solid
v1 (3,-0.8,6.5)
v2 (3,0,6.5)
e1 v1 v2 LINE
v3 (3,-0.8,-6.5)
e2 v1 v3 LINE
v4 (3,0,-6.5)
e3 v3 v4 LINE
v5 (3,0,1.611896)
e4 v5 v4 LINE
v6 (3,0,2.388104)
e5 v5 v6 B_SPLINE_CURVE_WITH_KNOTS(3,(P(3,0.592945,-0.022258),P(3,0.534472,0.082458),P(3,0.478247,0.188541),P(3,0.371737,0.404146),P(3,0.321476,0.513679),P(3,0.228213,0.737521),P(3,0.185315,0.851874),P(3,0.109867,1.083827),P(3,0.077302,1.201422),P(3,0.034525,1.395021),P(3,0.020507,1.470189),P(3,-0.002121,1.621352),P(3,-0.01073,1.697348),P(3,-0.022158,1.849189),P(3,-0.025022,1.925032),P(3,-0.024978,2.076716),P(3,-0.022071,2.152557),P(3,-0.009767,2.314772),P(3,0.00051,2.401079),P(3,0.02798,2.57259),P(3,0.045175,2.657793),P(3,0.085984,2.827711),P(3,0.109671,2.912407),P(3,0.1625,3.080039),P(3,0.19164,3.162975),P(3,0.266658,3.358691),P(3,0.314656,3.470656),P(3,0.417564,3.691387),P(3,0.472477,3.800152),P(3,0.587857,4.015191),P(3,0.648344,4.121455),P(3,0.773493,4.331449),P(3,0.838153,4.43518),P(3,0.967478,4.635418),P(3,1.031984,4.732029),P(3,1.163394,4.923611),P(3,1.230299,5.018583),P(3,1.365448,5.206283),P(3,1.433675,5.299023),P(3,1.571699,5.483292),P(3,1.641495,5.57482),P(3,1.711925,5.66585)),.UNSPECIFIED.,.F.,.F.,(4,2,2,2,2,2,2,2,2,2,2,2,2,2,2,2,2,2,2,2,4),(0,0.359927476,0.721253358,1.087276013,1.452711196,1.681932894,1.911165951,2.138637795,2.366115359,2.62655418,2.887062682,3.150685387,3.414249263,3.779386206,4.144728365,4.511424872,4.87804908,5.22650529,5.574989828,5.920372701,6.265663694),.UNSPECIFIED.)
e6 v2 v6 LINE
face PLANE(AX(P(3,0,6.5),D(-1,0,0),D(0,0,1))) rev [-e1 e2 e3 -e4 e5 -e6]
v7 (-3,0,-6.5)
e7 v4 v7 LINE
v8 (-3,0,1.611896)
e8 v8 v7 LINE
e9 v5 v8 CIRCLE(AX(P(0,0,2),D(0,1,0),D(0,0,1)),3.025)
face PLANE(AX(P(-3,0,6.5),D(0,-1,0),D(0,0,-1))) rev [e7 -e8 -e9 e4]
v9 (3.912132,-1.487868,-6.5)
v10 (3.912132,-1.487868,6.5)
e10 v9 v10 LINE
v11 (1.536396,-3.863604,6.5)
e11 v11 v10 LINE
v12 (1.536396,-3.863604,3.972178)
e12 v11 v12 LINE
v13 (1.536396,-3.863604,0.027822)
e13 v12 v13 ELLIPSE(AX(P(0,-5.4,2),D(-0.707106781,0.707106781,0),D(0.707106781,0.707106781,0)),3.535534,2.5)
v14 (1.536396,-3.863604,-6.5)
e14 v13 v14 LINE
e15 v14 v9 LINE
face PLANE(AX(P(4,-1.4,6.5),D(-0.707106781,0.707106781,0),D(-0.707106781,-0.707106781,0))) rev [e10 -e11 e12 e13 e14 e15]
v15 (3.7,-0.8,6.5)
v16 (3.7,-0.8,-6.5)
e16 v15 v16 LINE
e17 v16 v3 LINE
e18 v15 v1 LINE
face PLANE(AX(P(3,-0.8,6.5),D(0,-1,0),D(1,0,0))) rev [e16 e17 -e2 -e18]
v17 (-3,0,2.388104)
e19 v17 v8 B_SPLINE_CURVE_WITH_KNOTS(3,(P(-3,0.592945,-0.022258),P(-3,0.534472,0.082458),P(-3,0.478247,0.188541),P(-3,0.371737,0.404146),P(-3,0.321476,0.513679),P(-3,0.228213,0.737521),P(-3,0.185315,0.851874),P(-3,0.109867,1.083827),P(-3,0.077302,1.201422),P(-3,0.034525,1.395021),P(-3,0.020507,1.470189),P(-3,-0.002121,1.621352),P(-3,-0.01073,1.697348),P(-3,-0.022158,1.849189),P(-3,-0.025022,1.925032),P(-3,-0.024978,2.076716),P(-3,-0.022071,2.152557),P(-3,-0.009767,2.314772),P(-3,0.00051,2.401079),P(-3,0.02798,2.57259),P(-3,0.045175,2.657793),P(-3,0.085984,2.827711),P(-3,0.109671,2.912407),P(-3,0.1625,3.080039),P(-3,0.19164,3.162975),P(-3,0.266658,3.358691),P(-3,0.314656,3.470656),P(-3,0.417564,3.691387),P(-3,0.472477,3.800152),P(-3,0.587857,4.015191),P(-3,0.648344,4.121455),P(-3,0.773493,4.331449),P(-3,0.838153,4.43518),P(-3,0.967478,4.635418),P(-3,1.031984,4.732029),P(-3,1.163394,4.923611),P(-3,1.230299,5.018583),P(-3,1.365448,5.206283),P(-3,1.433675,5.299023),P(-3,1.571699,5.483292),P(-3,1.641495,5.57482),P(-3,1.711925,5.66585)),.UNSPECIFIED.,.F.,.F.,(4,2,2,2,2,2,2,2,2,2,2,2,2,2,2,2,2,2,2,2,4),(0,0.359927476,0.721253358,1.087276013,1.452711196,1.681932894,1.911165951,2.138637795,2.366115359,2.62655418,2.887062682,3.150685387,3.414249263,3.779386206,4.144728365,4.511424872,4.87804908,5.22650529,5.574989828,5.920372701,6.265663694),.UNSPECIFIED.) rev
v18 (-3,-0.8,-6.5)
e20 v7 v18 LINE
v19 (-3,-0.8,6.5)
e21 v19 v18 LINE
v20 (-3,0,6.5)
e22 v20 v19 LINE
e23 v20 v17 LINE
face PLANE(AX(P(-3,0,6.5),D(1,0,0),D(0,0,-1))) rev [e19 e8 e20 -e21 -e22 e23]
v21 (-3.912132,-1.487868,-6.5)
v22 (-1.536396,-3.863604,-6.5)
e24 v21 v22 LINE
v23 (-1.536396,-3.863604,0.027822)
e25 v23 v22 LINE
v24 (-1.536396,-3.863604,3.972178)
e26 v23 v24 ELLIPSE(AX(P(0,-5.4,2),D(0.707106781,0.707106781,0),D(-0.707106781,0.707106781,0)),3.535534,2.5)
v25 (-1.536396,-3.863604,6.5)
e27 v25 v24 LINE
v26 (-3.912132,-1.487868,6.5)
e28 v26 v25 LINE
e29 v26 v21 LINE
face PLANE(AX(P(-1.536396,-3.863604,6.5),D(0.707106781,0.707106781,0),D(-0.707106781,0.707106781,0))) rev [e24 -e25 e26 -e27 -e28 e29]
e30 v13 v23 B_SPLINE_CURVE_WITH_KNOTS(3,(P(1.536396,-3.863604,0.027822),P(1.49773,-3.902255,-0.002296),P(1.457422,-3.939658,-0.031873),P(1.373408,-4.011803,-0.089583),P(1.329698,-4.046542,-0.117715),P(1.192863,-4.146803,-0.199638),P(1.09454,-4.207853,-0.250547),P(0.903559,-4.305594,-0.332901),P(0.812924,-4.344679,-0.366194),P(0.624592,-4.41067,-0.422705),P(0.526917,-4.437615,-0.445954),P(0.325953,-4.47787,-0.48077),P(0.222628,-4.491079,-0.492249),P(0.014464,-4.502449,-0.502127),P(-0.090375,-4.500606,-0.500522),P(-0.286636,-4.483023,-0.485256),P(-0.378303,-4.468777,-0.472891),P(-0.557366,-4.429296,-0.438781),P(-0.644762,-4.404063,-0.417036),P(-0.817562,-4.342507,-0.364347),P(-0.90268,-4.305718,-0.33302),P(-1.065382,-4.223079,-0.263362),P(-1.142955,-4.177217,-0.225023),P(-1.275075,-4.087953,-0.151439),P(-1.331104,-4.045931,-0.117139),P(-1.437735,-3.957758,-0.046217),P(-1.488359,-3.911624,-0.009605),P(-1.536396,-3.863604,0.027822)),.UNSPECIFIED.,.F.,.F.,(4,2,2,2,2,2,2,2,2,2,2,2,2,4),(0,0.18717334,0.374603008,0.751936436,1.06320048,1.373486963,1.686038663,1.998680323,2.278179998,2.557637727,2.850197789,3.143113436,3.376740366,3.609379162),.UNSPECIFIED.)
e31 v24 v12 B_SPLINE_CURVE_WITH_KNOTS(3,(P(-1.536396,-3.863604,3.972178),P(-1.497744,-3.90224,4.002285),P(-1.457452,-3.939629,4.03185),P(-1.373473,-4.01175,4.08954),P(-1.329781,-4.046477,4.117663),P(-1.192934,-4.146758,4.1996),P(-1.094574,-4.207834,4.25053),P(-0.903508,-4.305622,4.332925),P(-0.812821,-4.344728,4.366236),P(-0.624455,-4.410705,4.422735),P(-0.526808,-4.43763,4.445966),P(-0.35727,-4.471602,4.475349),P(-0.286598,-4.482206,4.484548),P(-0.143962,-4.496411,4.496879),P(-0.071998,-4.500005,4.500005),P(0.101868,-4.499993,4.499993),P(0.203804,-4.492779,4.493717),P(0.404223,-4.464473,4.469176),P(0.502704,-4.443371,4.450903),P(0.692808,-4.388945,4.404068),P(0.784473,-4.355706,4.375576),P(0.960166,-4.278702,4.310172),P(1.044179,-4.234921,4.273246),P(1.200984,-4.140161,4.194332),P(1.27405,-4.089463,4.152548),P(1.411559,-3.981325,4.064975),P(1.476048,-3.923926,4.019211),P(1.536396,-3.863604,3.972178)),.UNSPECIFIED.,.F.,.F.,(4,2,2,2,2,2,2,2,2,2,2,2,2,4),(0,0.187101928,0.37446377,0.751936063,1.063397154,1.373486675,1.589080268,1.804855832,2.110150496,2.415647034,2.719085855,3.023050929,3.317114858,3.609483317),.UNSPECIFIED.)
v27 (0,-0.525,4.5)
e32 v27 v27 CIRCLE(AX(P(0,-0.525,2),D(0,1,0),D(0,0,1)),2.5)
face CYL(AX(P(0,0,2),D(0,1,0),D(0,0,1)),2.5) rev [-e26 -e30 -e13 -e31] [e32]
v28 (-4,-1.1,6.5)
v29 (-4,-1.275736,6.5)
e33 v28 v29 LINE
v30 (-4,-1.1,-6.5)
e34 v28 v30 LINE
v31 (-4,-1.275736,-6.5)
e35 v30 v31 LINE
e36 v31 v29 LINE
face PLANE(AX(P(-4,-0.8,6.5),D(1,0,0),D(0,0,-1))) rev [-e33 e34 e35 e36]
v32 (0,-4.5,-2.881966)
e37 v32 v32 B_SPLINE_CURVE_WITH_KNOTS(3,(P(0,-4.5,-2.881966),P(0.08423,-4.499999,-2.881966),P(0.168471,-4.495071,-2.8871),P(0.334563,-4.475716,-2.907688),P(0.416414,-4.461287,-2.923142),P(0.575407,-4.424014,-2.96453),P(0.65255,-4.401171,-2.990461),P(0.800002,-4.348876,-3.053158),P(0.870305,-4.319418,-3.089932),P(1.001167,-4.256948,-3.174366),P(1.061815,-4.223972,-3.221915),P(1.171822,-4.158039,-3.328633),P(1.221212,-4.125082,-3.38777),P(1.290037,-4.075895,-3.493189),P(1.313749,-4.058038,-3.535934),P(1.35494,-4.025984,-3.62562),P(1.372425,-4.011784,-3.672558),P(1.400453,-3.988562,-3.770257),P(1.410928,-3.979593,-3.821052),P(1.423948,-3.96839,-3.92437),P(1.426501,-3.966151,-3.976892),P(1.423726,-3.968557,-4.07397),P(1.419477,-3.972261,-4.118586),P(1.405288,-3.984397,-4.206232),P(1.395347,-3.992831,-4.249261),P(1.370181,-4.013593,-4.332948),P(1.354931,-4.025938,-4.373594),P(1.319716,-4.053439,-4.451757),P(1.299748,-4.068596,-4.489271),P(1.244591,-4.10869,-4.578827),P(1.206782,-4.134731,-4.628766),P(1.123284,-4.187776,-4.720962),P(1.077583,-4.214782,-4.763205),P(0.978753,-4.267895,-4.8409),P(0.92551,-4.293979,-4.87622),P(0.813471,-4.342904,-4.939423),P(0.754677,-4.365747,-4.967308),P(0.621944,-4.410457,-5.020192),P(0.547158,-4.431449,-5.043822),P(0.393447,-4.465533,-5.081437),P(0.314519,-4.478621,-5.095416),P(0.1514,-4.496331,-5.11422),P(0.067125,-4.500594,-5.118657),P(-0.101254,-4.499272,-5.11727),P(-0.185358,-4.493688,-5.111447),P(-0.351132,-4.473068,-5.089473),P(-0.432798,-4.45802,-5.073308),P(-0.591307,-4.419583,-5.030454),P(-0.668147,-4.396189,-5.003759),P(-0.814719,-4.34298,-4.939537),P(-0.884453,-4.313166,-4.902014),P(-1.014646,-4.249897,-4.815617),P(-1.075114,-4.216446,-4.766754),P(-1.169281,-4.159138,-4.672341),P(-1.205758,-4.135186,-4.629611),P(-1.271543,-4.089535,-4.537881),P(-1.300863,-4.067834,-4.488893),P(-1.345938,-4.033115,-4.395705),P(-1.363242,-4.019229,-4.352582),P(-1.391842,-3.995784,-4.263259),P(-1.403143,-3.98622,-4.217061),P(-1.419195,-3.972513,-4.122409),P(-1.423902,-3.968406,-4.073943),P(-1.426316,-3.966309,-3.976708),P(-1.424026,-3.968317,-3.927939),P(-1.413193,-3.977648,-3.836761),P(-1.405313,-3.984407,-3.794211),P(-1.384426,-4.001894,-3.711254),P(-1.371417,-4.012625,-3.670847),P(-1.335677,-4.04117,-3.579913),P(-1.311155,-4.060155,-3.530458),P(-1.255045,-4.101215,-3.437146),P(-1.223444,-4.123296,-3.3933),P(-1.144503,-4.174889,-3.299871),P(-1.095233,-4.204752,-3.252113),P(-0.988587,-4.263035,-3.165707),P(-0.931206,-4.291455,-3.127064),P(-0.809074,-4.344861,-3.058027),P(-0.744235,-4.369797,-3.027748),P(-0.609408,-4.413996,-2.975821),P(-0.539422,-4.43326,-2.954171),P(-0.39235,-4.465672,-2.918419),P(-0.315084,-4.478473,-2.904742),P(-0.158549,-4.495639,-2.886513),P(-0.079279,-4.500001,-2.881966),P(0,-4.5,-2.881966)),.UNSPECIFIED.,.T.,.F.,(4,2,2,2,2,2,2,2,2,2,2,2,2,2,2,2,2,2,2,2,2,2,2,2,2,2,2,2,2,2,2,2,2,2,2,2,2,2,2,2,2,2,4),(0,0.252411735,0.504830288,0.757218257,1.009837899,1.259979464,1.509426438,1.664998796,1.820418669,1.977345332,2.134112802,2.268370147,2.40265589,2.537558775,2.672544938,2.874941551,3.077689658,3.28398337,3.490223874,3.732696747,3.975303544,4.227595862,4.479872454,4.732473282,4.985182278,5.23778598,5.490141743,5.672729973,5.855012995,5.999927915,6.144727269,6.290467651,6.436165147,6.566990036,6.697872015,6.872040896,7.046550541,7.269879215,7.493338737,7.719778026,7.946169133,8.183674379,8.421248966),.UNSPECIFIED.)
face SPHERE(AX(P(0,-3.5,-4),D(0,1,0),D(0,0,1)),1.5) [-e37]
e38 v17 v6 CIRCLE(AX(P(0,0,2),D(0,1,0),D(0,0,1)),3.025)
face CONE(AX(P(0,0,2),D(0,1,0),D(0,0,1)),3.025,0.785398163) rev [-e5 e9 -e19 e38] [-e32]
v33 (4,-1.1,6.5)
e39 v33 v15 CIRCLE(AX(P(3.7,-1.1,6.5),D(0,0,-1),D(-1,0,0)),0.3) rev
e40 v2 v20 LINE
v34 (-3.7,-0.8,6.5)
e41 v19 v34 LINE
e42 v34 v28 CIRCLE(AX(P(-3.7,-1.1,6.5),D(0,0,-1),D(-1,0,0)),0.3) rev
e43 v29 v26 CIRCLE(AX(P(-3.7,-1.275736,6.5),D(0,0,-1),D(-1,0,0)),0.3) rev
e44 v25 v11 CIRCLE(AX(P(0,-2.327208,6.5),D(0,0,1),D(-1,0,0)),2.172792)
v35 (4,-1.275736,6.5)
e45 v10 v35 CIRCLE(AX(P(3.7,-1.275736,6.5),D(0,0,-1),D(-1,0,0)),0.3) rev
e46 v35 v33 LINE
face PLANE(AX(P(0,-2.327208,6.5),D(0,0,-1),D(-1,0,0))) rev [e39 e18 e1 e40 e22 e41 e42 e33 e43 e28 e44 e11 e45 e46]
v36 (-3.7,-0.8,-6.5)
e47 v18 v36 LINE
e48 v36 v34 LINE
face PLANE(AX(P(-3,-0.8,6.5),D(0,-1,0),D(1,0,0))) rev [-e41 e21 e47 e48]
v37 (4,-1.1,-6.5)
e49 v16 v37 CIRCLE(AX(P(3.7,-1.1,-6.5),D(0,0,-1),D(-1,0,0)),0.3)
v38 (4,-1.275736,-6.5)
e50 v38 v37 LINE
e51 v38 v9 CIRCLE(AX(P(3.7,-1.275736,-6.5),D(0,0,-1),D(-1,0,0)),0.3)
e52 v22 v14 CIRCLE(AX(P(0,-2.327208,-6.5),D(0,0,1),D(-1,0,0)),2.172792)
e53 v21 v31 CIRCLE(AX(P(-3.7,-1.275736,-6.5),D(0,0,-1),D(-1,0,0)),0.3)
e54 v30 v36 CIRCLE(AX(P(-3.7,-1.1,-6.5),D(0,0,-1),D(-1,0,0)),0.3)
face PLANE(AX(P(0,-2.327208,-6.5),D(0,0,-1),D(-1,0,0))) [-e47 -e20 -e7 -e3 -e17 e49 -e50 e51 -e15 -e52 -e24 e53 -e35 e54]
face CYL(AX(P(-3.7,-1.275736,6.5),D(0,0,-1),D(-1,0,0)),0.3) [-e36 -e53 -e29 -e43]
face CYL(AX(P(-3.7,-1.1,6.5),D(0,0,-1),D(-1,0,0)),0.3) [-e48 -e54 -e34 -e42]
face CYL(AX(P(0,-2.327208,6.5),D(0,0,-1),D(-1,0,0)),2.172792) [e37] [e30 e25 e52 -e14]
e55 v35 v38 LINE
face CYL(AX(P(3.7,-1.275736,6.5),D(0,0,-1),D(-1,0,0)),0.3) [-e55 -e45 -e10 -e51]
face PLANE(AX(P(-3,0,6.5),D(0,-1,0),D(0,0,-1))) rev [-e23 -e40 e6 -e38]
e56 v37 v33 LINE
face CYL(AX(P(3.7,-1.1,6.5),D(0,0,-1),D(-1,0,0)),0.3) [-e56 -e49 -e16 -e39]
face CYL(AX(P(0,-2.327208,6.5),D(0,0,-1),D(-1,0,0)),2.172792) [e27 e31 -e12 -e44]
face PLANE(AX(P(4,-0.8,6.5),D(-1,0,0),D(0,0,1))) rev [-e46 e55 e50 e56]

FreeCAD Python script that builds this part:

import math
import FreeCAD as App
import Part
import Sketcher
Q = App.Units.Quantity


def edges_at(feature, points):
    """Names of the edges that pass closest to the given points."""
    edges = feature.Shape.Edges
    near = lambda p: min(range(len(edges)), key=lambda i: edges[i].distToShape(Part.Vertex(*p))[0])
    return sorted({f"Edge{near(p) + 1}" for p in points})

doc = App.newDocument("Part")
body = doc.addObject("PartDesign::Body", "Body")

# Sketch on XY plane
sketch1 = doc.addObject("Sketcher::SketchObject", "Sketch")
body.addObject(sketch1)
sketch1.AttachmentSupport = (doc.XY_Plane, [""])
sketch1.MapMode = "FlatFace"
sketch1.addGeometry([
    Part.LineSegment(App.Vector(3, 0, 0), App.Vector(-3, 0, 0)),  # 0
    Part.LineSegment(App.Vector(-3, 0, 0), App.Vector(-3, -0.8, 0)),  # 1
    Part.LineSegment(App.Vector(-3, -0.8, 0), App.Vector(-4, -0.8, 0)),  # 2
    Part.LineSegment(App.Vector(-4, -0.8, 0), App.Vector(-4, -1.4, 0)),  # 3
    Part.LineSegment(App.Vector(-4, -1.4, 0), App.Vector(-1.536396, -3.863604, 0)),  # 4
    Part.ArcOfCircle(Part.Circle(App.Vector(0, -2.327208, 0), App.Vector(0, 0, 1), 2.172792), math.radians(-135), math.radians(-45)),  # 5
    Part.LineSegment(App.Vector(1.536396, -3.863604, 0), App.Vector(4, -1.4, 0)),  # 6
    Part.LineSegment(App.Vector(4, -1.4, 0), App.Vector(4, -0.8, 0)),  # 7
    Part.LineSegment(App.Vector(4, -0.8, 0), App.Vector(3, -0.8, 0)),  # 8
    Part.LineSegment(App.Vector(3, -0.8, 0), App.Vector(3, 0, 0)),  # 9
], False)
sketch1.addConstraint([
    Sketcher.Constraint("Coincident", 0, 2, 1, 1),
    Sketcher.Constraint("Coincident", 1, 2, 2, 1),
    Sketcher.Constraint("Coincident", 2, 2, 3, 1),
    Sketcher.Constraint("Coincident", 3, 2, 4, 1),
    Sketcher.Constraint("Tangent", 4, 2, 5, 1),
    Sketcher.Constraint("Tangent", 5, 2, 6, 1),
    Sketcher.Constraint("Coincident", 6, 2, 7, 1),
    Sketcher.Constraint("Coincident", 7, 2, 8, 1),
    Sketcher.Constraint("Coincident", 8, 2, 9, 1),
    Sketcher.Constraint("Coincident", 9, 2, 0, 1),
    Sketcher.Constraint("Horizontal", 0),
    Sketcher.Constraint("Vertical", 1),
    Sketcher.Constraint("Horizontal", 2),
    Sketcher.Constraint("Vertical", 3),
    Sketcher.Constraint("Vertical", 7),
    Sketcher.Constraint("Horizontal", 8),
    Sketcher.Constraint("Vertical", 9),
    Sketcher.Constraint("Symmetric", 0, 2, 9, 2, -1, 1),
    Sketcher.Constraint("Symmetric", 4, 2, 5, 2, -2),
    Sketcher.Constraint("Symmetric", 2, 2, 7, 2, -2),
    Sketcher.Constraint("Perpendicular", 4, 6),
    Sketcher.Constraint("DistanceX", 0, 2, 0, 1, Q("6 mm")),
    Sketcher.Constraint("DistanceX", 2, 2, 2, 1, Q("1 mm")),
    Sketcher.Constraint("DistanceY", 1, 2, 1, 1, Q("0.8 mm")),
    Sketcher.Constraint("DistanceY", 3, 2, 3, 1, Q("0.6 mm")),
    Sketcher.Constraint("Radius", 5, Q("2.172792 mm")),
])
pad1 = doc.addObject("PartDesign::Pad", "Pad")
body.addObject(pad1)
pad1.Profile = sketch1
pad1.Length = 13
pad1.Midplane = True

# Sketch on XZ plane
sketch2 = doc.addObject("Sketcher::SketchObject", "Sketch001")
body.addObject(sketch2)
sketch2.AttachmentSupport = (doc.XZ_Plane, [""])
sketch2.MapMode = "FlatFace"
sketch2.addGeometry(Part.Circle(App.Vector(0, 2, 0), App.Vector(0, 0, 1), 2.5), False)
sketch2.addConstraint([
    Sketcher.Constraint("PointOnObject", 0, 3, -2),
    Sketcher.Constraint("Diameter", 0, Q("5 mm")),
    Sketcher.Constraint("DistanceY", -1, 1, 0, 3, Q("2 mm")),
])
doc.recompute()
hole = doc.addObject("PartDesign::Hole", "Hole")
body.addObject(hole)
hole.Profile = sketch2
hole.ThreadType = "None"
hole.Diameter = 5
hole.DepthType = "ThroughAll"
hole.HoleCutType = "Countersink"
hole.HoleCutDiameter = 6.05
hole.HoleCutCountersinkAngle = 90
hole.Reversed = True

# Sketch on YZ plane
sketch3 = doc.addObject("Sketcher::SketchObject", "Sketch002")
body.addObject(sketch3)
sketch3.AttachmentSupport = (doc.YZ_Plane, [""])
sketch3.MapMode = "FlatFace"
sketch3.addGeometry([
    Part.LineSegment(App.Vector(-5, -4, 0), App.Vector(-2, -4, 0)),
    Part.ArcOfCircle(Part.Circle(App.Vector(-3.5, -4, 0), App.Vector(0, 0, 1), 1.5), math.radians(0), math.radians(180)),
], False)
sketch3.addGeometry(Part.LineSegment(App.Vector(-2, -4, 0), App.Vector(-5, -4, 0)), True)  # axis
sketch3.addConstraint([
    Sketcher.Constraint("Coincident", 0, 1, 1, 2),
    Sketcher.Constraint("Coincident", 1, 1, 0, 2),
    Sketcher.Constraint("Horizontal", 0),
    Sketcher.Constraint("Horizontal", 2),
    Sketcher.Constraint("Coincident", 2, 1, 1, 1),
    Sketcher.Constraint("Horizontal", 1, 3, 0, 1),
    Sketcher.Constraint("Equal", 0, 2),
    Sketcher.Constraint("Radius", 1, Q("1.5 mm")),
    Sketcher.Constraint("DistanceY", 1, 3, -1, 1, Q("4 mm")),
    Sketcher.Constraint("DistanceX", 0, 1, -1, 1, Q("5 mm")),
])
revolution = doc.addObject("PartDesign::Revolution", "Revolution")
body.addObject(revolution)
revolution.Profile = sketch3
revolution.ReferenceAxis = (sketch3, ["Axis0"])
revolution.Angle = 360
doc.recompute()

fillet = doc.addObject("PartDesign::Fillet", "Fillet")
body.addObject(fillet)
fillet.Base = (revolution, edges_at(revolution, [
    (4, -0.8, 0),
    (4, -1.4, 0),
    (-4, -1.4, 0),
    (-4, -0.8, 0),
]))
fillet.Radius = 0.3

doc.recompute()
